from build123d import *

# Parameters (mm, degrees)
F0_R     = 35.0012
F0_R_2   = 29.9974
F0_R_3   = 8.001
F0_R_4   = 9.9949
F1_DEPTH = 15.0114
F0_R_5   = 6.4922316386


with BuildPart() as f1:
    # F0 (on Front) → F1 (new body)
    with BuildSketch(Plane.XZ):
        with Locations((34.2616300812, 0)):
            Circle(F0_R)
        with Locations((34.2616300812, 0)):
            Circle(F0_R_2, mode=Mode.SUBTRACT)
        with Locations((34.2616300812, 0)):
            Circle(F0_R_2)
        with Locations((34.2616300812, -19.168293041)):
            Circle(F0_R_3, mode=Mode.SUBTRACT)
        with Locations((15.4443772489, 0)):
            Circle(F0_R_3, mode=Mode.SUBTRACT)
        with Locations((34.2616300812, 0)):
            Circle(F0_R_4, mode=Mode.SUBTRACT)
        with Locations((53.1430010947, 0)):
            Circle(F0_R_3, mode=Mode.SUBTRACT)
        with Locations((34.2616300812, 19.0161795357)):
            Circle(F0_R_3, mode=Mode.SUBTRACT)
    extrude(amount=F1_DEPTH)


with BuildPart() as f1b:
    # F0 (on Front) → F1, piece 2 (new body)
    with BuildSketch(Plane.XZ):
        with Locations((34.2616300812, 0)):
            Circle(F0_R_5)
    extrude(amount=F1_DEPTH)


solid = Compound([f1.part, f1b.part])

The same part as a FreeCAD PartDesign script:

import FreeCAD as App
import Part
import Sketcher

V = App.Vector
Q = App.Units.Quantity

doc = App.newDocument("Part")
body = doc.addObject("PartDesign::Body", "Body")

# Sketch on XZ plane
sketch1 = doc.addObject("Sketcher::SketchObject", "Sketch")
body.addObject(sketch1)
sketch1.AttachmentSupport = (doc.XZ_Plane, [""])
sketch1.MapMode = "FlatFace"
sketch1.addGeometry(Part.Circle(V(34.26163, 0, 0), V(0, 0, 1), 35.0012), False)
sketch1.addGeometry(Part.Circle(V(34.26163, -19.168293, 0), V(0, 0, 1), 8.001), False)
sketch1.addGeometry(Part.Circle(V(15.444377, 0, 0), V(0, 0, 1), 8.001), False)
sketch1.addGeometry(Part.Circle(V(34.26163, 0, 0), V(0, 0, 1), 9.9949), False)
sketch1.addGeometry(Part.Circle(V(34.26163, 19.01618, 0), V(0, 0, 1), 8.001), False)
sketch1.addGeometry(Part.Circle(V(53.143001, 0, 0), V(0, 0, 1), 8.001), False)
sketch1.addConstraint(Sketcher.Constraint("Coincident", 3, 3, 0, 3))
sketch1.addConstraint(Sketcher.Constraint("Equal", 1, 2))
sketch1.addConstraint(Sketcher.Constraint("Equal", 2, 4))
sketch1.addConstraint(Sketcher.Constraint("Equal", 4, 5))
sketch1.addConstraint(Sketcher.Constraint("PointOnObject", 0, 3, -1))
sketch1.addConstraint(Sketcher.Constraint("PointOnObject", 2, 3, -1))
sketch1.addConstraint(Sketcher.Constraint("PointOnObject", 5, 3, -1))
sketch1.addConstraint(Sketcher.Constraint("Vertical", 0, 3, 1, 3))
sketch1.addConstraint(Sketcher.Constraint("Vertical", 3, 3, 4, 3))
sketch1.addConstraint(Sketcher.Constraint("Diameter", 1, Q("0.63 in")))
sketch1.addConstraint(Sketcher.Constraint("Diameter", 0, Q("2.756 in")))
sketch1.addConstraint(Sketcher.Constraint("Diameter", 3, Q("0.787 in")))
sketch1.addConstraint(Sketcher.Constraint("DistanceX", -1, 1, 5, 3, 53.143001))
sketch1.addConstraint(Sketcher.Constraint("DistanceX", -1, 1, 0, 3, 34.26163))
sketch1.addConstraint(Sketcher.Constraint("DistanceY", -1, 1, 4, 3, 19.01618))
sketch1.addConstraint(Sketcher.Constraint("DistanceY", 1, 3, -1, 1, 19.168293))
sketch1.addConstraint(Sketcher.Constraint("DistanceX", -1, 1, 2, 3, 15.444377))
pad1 = doc.addObject("PartDesign::Pad", "Pad")
body.addObject(pad1)
pad1.Profile = sketch1
pad1.Length = Q("0.591 in")
body2 = doc.addObject("PartDesign::Body", "Body001")

# Sketch on XZ plane
sketch2 = doc.addObject("Sketcher::SketchObject", "Sketch001")
body2.addObject(sketch2)
sketch2.AttachmentSupport = (doc.getObject("XZ_Plane001"), [""])
sketch2.MapMode = "FlatFace"
sketch2.addGeometry(Part.Circle(V(34.26163, 0, 0), V(0, 0, 1), 6.492232), False)
sketch2.addConstraint(Sketcher.Constraint("PointOnObject", 0, 3, -1))
sketch2.addConstraint(Sketcher.Constraint("Diameter", 0, 12.984463))
sketch2.addConstraint(Sketcher.Constraint("DistanceX", -1, 1, 0, 3, 34.26163))
pad2 = doc.addObject("PartDesign::Pad", "Pad001")
body2.addObject(pad2)
pad2.Profile = sketch2
pad2.Length = Q("0.591 in")

doc.recompute()
